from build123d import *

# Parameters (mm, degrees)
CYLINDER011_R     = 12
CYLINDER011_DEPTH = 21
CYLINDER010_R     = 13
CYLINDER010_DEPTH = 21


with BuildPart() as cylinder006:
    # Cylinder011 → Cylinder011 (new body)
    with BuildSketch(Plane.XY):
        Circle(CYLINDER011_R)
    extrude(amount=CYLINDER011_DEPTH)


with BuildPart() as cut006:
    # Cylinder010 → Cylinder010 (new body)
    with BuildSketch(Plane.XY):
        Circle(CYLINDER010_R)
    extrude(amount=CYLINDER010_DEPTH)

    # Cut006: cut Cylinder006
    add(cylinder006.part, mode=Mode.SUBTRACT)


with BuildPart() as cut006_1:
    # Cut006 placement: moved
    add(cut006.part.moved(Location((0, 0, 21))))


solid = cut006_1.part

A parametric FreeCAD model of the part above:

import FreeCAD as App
import Part
import Sketcher
from FreeCAD import Vector

doc = App.newDocument("Part")
body = doc.addObject("PartDesign::Body", "Body")

# Sketch on XY plane
sketch1 = body.newObject("Sketcher::SketchObject", "Sketch")
sketch1.AttachmentSupport = (doc.getObject("XY_Plane"), [""])
sketch1.MapMode = "FlatFace"
sketch1.addGeometry(Part.Circle(Vector(0, 0, 0), Vector(0, 0, 1), 12), False)
sketch1.addConstraint([
    Sketcher.Constraint("Coincident", 0, 3, -1, 1),
    Sketcher.Constraint("Diameter", 0, 24.0),
])
pad1 = body.newObject("PartDesign::Pad", "Pad")
pad1.Profile = sketch1
pad1.Length = 21
body2 = doc.addObject("PartDesign::Body", "Body001")

# Sketch on XY plane
sketch2 = body2.newObject("Sketcher::SketchObject", "Sketch001")
sketch2.AttachmentSupport = (doc.getObject("XY_Plane001"), [""])
sketch2.MapMode = "FlatFace"
sketch2.addGeometry(Part.Circle(Vector(0, 0, 0), Vector(0, 0, 1), 13), False)
sketch2.addConstraint([
    Sketcher.Constraint("Coincident", 0, 3, -1, 1),
    Sketcher.Constraint("Diameter", 0, 26.0),
])
pad2 = body2.newObject("PartDesign::Pad", "Pad001")
pad2.Profile = sketch2
pad2.Length = 21
doc.recompute()

boolean = body2.newObject("PartDesign::Boolean", "Boolean")
boolean.Type = "Cut"
boolean.addObjects([body])
body3 = doc.addObject("PartDesign::Body", "Body002")
doc.recompute()

body2.Placement = App.Placement(Vector(0, 0, 21), App.Rotation(Vector(0, 0, 1), 0))
boolean2 = body3.newObject("PartDesign::Boolean", "Boolean001")
boolean2.Type = "Fuse"
boolean2.addObjects([body2])

doc.recompute()
